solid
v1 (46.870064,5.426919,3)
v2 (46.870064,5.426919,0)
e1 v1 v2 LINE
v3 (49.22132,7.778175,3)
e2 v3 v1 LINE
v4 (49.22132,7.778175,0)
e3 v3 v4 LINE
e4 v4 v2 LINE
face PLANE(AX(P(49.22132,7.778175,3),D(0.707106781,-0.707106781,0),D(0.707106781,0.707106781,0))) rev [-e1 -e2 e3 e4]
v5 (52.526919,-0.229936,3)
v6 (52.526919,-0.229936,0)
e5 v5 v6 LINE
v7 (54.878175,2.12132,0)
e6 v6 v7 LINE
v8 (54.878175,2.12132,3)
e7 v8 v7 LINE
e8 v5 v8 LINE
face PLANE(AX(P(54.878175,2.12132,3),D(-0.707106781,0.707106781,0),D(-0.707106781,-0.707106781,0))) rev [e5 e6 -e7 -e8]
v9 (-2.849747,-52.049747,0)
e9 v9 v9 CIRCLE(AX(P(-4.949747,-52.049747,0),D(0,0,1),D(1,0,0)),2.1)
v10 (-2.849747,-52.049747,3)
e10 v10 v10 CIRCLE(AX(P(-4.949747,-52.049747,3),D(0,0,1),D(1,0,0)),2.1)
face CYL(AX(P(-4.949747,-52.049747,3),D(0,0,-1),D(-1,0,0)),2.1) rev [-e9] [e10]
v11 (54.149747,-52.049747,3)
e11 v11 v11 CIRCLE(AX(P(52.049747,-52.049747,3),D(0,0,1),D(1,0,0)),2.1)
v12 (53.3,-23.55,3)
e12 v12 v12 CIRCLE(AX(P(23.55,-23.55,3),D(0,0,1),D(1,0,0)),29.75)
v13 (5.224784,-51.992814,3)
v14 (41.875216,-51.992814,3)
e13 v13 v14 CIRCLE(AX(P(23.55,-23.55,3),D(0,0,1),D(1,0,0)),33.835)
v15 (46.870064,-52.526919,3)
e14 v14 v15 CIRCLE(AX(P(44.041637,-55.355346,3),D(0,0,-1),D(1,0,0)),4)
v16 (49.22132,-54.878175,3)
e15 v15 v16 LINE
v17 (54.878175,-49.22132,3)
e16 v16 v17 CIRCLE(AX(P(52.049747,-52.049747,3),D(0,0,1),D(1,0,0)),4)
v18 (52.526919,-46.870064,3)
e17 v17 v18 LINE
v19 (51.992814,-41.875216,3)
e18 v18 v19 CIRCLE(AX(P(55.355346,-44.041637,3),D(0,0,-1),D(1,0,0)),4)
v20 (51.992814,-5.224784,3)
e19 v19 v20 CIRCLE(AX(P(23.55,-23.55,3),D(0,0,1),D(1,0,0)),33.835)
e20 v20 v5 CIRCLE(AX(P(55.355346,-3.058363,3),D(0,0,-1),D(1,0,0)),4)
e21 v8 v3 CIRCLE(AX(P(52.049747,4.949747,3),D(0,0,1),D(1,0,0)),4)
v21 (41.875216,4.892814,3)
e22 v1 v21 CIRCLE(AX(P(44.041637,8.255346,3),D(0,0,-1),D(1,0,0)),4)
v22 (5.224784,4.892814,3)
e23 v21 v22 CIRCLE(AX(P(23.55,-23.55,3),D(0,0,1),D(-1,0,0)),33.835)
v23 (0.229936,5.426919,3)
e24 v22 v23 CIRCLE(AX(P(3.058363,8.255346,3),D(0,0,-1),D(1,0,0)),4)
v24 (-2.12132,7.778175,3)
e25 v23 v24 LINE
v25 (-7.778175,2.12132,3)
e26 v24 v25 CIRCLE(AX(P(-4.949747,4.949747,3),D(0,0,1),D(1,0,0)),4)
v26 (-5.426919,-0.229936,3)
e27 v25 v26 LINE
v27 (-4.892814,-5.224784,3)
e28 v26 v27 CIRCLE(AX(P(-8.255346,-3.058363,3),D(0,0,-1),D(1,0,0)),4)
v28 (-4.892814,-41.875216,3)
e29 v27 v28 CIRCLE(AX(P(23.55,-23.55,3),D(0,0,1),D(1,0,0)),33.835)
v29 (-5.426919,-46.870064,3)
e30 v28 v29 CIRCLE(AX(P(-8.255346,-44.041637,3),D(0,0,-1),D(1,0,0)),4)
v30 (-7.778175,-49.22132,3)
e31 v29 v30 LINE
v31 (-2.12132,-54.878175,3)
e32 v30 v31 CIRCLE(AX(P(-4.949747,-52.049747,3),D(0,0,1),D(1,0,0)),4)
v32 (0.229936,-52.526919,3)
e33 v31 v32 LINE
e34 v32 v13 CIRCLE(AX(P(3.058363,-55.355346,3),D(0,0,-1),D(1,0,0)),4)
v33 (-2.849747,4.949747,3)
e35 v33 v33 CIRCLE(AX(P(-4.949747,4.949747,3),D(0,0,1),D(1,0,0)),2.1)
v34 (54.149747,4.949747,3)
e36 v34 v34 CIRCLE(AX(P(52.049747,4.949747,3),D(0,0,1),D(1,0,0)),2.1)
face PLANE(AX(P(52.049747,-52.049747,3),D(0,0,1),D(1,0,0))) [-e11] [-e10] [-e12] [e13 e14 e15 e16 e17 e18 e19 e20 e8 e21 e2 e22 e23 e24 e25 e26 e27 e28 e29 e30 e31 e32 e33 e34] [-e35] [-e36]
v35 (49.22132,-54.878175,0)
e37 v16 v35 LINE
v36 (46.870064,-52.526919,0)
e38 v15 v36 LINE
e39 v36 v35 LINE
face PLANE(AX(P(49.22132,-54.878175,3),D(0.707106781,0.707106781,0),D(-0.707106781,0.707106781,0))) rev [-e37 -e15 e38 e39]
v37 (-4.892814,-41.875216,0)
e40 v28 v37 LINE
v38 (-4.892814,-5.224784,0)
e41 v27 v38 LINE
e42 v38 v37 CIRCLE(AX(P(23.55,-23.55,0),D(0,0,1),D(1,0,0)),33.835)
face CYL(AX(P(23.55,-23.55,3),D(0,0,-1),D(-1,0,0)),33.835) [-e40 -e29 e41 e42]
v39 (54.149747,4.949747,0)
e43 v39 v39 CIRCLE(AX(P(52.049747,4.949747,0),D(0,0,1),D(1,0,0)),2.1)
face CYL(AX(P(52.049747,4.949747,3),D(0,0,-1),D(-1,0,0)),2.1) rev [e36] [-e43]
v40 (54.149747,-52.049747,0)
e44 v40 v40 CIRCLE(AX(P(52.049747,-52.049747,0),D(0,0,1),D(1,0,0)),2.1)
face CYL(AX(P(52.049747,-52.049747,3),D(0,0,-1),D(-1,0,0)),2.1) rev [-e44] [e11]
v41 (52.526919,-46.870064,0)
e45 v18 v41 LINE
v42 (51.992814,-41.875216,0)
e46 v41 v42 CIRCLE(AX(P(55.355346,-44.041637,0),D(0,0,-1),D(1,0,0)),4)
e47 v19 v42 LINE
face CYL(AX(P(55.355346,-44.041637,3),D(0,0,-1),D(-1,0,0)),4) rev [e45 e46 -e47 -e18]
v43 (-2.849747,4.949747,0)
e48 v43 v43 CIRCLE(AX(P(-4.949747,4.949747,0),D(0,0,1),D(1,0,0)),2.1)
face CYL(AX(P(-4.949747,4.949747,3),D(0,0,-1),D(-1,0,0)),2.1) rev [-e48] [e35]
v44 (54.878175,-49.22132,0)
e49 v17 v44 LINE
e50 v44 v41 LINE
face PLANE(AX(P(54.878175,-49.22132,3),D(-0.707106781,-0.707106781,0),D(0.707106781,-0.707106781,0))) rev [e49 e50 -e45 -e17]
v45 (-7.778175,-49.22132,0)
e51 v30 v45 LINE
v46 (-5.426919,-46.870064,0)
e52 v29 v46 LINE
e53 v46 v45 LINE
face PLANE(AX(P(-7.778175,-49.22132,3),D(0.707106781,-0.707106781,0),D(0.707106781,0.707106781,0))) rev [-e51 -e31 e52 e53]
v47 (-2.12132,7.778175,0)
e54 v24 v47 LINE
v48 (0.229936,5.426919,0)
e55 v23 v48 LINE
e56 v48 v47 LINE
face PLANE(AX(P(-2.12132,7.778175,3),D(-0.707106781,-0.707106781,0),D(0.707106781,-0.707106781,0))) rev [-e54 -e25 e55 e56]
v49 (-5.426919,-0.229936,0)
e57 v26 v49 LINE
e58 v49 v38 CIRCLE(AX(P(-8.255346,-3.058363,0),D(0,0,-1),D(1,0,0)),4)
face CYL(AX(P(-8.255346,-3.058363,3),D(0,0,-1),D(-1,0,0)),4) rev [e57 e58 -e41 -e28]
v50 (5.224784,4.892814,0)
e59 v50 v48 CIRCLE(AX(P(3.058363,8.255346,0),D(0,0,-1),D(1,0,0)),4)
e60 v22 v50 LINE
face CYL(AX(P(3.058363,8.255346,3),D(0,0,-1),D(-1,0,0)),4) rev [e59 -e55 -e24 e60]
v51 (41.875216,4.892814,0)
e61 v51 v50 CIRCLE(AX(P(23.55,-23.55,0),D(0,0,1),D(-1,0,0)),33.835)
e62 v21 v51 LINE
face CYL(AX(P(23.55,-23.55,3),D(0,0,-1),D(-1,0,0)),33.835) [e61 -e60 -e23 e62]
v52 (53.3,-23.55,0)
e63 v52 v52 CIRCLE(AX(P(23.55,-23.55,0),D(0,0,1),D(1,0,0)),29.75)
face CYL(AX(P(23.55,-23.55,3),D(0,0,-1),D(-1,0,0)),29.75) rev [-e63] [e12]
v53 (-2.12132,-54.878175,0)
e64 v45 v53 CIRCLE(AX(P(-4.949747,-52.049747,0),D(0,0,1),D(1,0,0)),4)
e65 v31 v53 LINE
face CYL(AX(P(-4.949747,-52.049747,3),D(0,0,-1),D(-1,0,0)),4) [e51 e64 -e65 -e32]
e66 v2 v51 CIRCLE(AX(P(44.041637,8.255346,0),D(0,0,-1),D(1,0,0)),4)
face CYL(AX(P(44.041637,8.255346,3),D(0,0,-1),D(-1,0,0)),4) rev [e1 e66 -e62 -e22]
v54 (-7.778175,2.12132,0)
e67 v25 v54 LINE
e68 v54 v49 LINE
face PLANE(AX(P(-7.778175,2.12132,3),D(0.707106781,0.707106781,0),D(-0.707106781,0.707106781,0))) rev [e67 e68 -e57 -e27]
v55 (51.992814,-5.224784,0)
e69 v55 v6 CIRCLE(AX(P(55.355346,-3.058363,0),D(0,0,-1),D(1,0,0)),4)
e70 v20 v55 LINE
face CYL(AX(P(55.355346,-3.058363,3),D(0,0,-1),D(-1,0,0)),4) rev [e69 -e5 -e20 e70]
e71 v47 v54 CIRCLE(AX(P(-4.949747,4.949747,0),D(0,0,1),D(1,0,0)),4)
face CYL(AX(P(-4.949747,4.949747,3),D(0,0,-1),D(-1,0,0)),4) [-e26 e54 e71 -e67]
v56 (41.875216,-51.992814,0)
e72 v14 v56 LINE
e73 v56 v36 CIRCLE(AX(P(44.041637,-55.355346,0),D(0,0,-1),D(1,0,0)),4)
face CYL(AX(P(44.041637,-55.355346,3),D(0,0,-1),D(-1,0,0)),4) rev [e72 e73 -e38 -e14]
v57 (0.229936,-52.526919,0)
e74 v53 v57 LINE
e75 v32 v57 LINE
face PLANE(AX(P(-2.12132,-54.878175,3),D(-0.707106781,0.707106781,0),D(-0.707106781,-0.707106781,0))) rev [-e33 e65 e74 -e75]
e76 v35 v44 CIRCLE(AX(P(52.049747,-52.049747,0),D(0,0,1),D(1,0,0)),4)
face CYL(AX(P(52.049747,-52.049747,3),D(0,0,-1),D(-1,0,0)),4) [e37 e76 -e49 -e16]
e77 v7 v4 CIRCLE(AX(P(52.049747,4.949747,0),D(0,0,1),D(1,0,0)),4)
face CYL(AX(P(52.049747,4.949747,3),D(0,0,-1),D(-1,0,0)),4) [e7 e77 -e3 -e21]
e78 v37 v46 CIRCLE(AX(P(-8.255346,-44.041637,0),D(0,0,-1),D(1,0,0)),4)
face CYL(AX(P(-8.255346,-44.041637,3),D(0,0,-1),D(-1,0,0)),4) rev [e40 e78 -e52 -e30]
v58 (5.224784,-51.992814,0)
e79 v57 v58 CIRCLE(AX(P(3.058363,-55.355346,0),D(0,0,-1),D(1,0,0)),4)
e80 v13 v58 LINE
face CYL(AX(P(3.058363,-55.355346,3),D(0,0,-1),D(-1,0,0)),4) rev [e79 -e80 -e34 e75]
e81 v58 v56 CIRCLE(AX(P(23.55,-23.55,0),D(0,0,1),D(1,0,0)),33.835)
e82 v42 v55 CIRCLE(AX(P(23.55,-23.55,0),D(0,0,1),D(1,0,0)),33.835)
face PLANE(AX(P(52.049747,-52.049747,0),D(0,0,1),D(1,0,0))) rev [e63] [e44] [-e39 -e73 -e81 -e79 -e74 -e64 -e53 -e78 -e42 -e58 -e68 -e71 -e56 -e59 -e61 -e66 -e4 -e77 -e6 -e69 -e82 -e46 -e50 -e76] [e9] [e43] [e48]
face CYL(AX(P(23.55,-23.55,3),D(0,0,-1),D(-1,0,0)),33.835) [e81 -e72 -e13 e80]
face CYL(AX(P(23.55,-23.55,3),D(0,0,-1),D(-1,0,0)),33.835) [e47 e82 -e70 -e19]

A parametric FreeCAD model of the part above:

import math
import FreeCAD as App
import Part
import Sketcher

V = App.Vector
Q = App.Units.Quantity

doc = App.newDocument("Part")
body = doc.addObject("PartDesign::Body", "Body")

sketch1 = doc.addObject("Sketcher::SketchObject", "Sketch")
body.addObject(sketch1)
sketch1.AttachmentSupport = (doc.XY_Plane, [""])
sketch1.MapMode = "FlatFace"
sketch1.addGeometry(Part.LineSegment(V(46.9, -52.5, 0), V(49.2, -54.9, 0)), False)
sketch1.addGeometry(Part.ArcOfCircle(Part.Circle(V(52, -52, 0), V(0, 0, 1), 4), math.radians(-135), math.radians(45)), False)
sketch1.addGeometry(Part.LineSegment(V(54.9, -49.2, 0), V(52.5, -46.9, 0)), False)
sketch1.addGeometry(Part.ArcOfCircle(Part.Circle(V(55.4, -44, 0), V(0, 0, 1), 4), math.radians(147), math.radians(225)), False)
sketch1.addGeometry(Part.ArcOfCircle(Part.Circle(V(23.6, -23.5, 0), V(0, 0, 1), 33.8), math.radians(-33), math.radians(33)), False)
sketch1.addGeometry(Part.ArcOfCircle(Part.Circle(V(55.4, -3.1, 0), V(0, 0, 1), 4), math.radians(135), math.radians(213)), False)
sketch1.addGeometry(Part.LineSegment(V(52.5, -0.2, 0), V(54.9, 2.1, 0)), False)
sketch1.addGeometry(Part.ArcOfCircle(Part.Circle(V(52, 4.9, 0), V(0, 0, 1), 4), math.radians(-45), math.radians(135)), False)
sketch1.addGeometry(Part.LineSegment(V(49.2, 7.8, 0), V(46.9, 5.4, 0)), False)
sketch1.addGeometry(Part.ArcOfCircle(Part.Circle(V(44, 8.3, 0), V(0, 0, 1), 4), math.radians(-123), math.radians(-45)), False)
sketch1.addGeometry(Part.ArcOfCircle(Part.Circle(V(23.6, -23.6, 0), V(0, 0, 1), 33.8), math.radians(57), math.radians(123)), False)
sketch1.addGeometry(Part.ArcOfCircle(Part.Circle(V(3.1, 8.3, 0), V(0, 0, 1), 4), math.radians(-135), math.radians(-57)), False)
sketch1.addGeometry(Part.LineSegment(V(0.2, 5.4, 0), V(-2.1, 7.8, 0)), False)
sketch1.addGeometry(Part.ArcOfCircle(Part.Circle(V(-4.9, 4.9, 0), V(0, 0, 1), 4), math.radians(45), math.radians(225)), False)
sketch1.addGeometry(Part.LineSegment(V(-7.8, 2.1, 0), V(-5.4, -0.2, 0)), False)
sketch1.addGeometry(Part.ArcOfCircle(Part.Circle(V(-8.3, -3.1, 0), V(0, 0, 1), 4), math.radians(-33), math.radians(45)), False)
sketch1.addGeometry(Part.ArcOfCircle(Part.Circle(V(23.5, -23.5, 0), V(0, 0, 1), 33.8), math.radians(147), math.radians(213)), False)
sketch1.addGeometry(Part.ArcOfCircle(Part.Circle(V(-8.3, -44, 0), V(0, 0, 1), 4), math.radians(-45), math.radians(33)), False)
sketch1.addGeometry(Part.LineSegment(V(-5.4, -46.9, 0), V(-7.8, -49.2, 0)), False)
sketch1.addGeometry(Part.ArcOfCircle(Part.Circle(V(-4.9, -52, 0), V(0, 0, 1), 4), math.radians(135), math.radians(315)), False)
sketch1.addGeometry(Part.LineSegment(V(-2.1, -54.9, 0), V(0.2, -52.5, 0)), False)
sketch1.addGeometry(Part.ArcOfCircle(Part.Circle(V(3.1, -55.4, 0), V(0, 0, 1), 4), math.radians(57), math.radians(135)), False)
sketch1.addGeometry(Part.ArcOfCircle(Part.Circle(V(23.5, -23.6, 0), V(0, 0, 1), 33.8), math.radians(-123), math.radians(-57)), False)
sketch1.addGeometry(Part.ArcOfCircle(Part.Circle(V(44, -55.4, 0), V(0, 0, 1), 4), math.radians(45), math.radians(123)), False)
sketch1.addGeometry(Part.Circle(V(52, -52, 0), V(0, 0, 1), 2.1), False)
sketch1.addGeometry(Part.Circle(V(-4.9, -52, 0), V(0, 0, 1), 2.1), False)
sketch1.addGeometry(Part.Circle(V(52, 4.9, 0), V(0, 0, 1), 2.1), False)
sketch1.addGeometry(Part.Circle(V(23.6, -23.6, 0), V(0, 0, 1), 29.8), False)
sketch1.addGeometry(Part.Circle(V(-4.9, 4.9, 0), V(0, 0, 1), 2.1), False)
sketch1.addConstraint(Sketcher.Constraint("Tangent", 0, 2, 1, 1))
sketch1.addConstraint(Sketcher.Constraint("Tangent", 1, 2, 2, 1))
sketch1.addConstraint(Sketcher.Constraint("Tangent", 2, 2, 3, 2))
sketch1.addConstraint(Sketcher.Constraint("Tangent", 3, 1, 4, 1))
sketch1.addConstraint(Sketcher.Constraint("Tangent", 4, 2, 5, 2))
sketch1.addConstraint(Sketcher.Constraint("Tangent", 5, 1, 6, 1))
sketch1.addConstraint(Sketcher.Constraint("Tangent", 6, 2, 7, 1))
sketch1.addConstraint(Sketcher.Constraint("Tangent", 7, 2, 8, 1))
sketch1.addConstraint(Sketcher.Constraint("Tangent", 8, 2, 9, 2))
sketch1.addConstraint(Sketcher.Constraint("Tangent", 9, 1, 10, 1))
sketch1.addConstraint(Sketcher.Constraint("Tangent", 10, 2, 11, 2))
sketch1.addConstraint(Sketcher.Constraint("Tangent", 11, 1, 12, 1))
sketch1.addConstraint(Sketcher.Constraint("Tangent", 12, 2, 13, 1))
sketch1.addConstraint(Sketcher.Constraint("Tangent", 13, 2, 14, 1))
sketch1.addConstraint(Sketcher.Constraint("Tangent", 14, 2, 15, 2))
sketch1.addConstraint(Sketcher.Constraint("Tangent", 15, 1, 16, 1))
sketch1.addConstraint(Sketcher.Constraint("Tangent", 16, 2, 17, 2))
sketch1.addConstraint(Sketcher.Constraint("Tangent", 17, 1, 18, 1))
sketch1.addConstraint(Sketcher.Constraint("Tangent", 18, 2, 19, 1))
sketch1.addConstraint(Sketcher.Constraint("Tangent", 19, 2, 20, 1))
sketch1.addConstraint(Sketcher.Constraint("Tangent", 20, 2, 21, 2))
sketch1.addConstraint(Sketcher.Constraint("Tangent", 21, 1, 22, 1))
sketch1.addConstraint(Sketcher.Constraint("Tangent", 22, 2, 23, 2))
sketch1.addConstraint(Sketcher.Constraint("Tangent", 23, 1, 0, 1))
sketch1.addConstraint(Sketcher.Constraint("Coincident", 10, 3, 4, 3))
sketch1.addConstraint(Sketcher.Constraint("Coincident", 16, 3, 4, 3))
sketch1.addConstraint(Sketcher.Constraint("Coincident", 22, 3, 4, 3))
sketch1.addConstraint(Sketcher.Constraint("Coincident", 24, 3, 1, 3))
sketch1.addConstraint(Sketcher.Constraint("Coincident", 25, 3, 19, 3))
sketch1.addConstraint(Sketcher.Constraint("Coincident", 26, 3, 7, 3))
sketch1.addConstraint(Sketcher.Constraint("Coincident", 27, 3, 4, 3))
sketch1.addConstraint(Sketcher.Constraint("Coincident", 28, 3, 13, 3))
sketch1.addConstraint(Sketcher.Constraint("Equal", 1, 3))
sketch1.addConstraint(Sketcher.Constraint("Equal", 3, 5))
sketch1.addConstraint(Sketcher.Constraint("Equal", 5, 7))
sketch1.addConstraint(Sketcher.Constraint("Equal", 7, 9))
sketch1.addConstraint(Sketcher.Constraint("Equal", 4, 10))
sketch1.addConstraint(Sketcher.Constraint("Equal", 9, 11))
sketch1.addConstraint(Sketcher.Constraint("Equal", 11, 13))
sketch1.addConstraint(Sketcher.Constraint("Equal", 13, 15))
sketch1.addConstraint(Sketcher.Constraint("Equal", 10, 16))
sketch1.addConstraint(Sketcher.Constraint("Equal", 15, 17))
sketch1.addConstraint(Sketcher.Constraint("Equal", 17, 19))
sketch1.addConstraint(Sketcher.Constraint("Equal", 19, 21))
sketch1.addConstraint(Sketcher.Constraint("Equal", 16, 22))
sketch1.addConstraint(Sketcher.Constraint("Equal", 21, 23))
sketch1.addConstraint(Sketcher.Constraint("Equal", 24, 25))
sketch1.addConstraint(Sketcher.Constraint("Equal", 25, 26))
sketch1.addConstraint(Sketcher.Constraint("Equal", 26, 28))
sketch1.addConstraint(Sketcher.Constraint("Parallel", 0, 2))
sketch1.addConstraint(Sketcher.Constraint("Perpendicular", 2, 6))
sketch1.addConstraint(Sketcher.Constraint("Parallel", 6, 8))
sketch1.addConstraint(Sketcher.Constraint("Perpendicular", 8, 12))
sketch1.addConstraint(Sketcher.Constraint("Parallel", 12, 14))
sketch1.addConstraint(Sketcher.Constraint("Perpendicular", 14, 18))
sketch1.addConstraint(Sketcher.Constraint("Parallel", 18, 20))
sketch1.addConstraint(Sketcher.Constraint("Horizontal", 9, 3, 11, 3))
sketch1.addConstraint(Sketcher.Constraint("Horizontal", 7, 3, 13, 3))
sketch1.addConstraint(Sketcher.Constraint("Horizontal", 3, 3, 17, 3))
sketch1.addConstraint(Sketcher.Constraint("Horizontal", 1, 3, 19, 3))
sketch1.addConstraint(Sketcher.Constraint("Horizontal", 8, 2, 11, 1))
sketch1.addConstraint(Sketcher.Constraint("Vertical", 3, 3, 5, 3))
sketch1.addConstraint(Sketcher.Constraint("Vertical", 1, 3, 7, 3))
sketch1.addConstraint(Sketcher.Constraint("Equal", 0, 2))
sketch1.addConstraint(Sketcher.Constraint("Radius", 1, Q("4 mm")))
sketch1.addConstraint(Sketcher.Constraint("Diameter", 24, Q("4.2 mm")))
sketch1.addConstraint(Sketcher.Constraint("Diameter", 27, Q("59.5 mm")))
sketch1.addConstraint(Sketcher.Constraint("Radius", 4, Q("33.835 mm")))
sketch1.addConstraint(Sketcher.Constraint("DistanceX", -1, 1, 4, 3, Q("23.55 mm")))
sketch1.addConstraint(Sketcher.Constraint("DistanceY", 4, 3, -1, 1, Q("23.55 mm")))
sketch1.addConstraint(Sketcher.Constraint("DistanceX", 1, 3, 3, 3, Q("3.305598 mm")))
pad1 = doc.addObject("PartDesign::Pad", "Pad")
body.addObject(pad1)
pad1.Profile = sketch1
pad1.Length = 3

doc.recompute()
